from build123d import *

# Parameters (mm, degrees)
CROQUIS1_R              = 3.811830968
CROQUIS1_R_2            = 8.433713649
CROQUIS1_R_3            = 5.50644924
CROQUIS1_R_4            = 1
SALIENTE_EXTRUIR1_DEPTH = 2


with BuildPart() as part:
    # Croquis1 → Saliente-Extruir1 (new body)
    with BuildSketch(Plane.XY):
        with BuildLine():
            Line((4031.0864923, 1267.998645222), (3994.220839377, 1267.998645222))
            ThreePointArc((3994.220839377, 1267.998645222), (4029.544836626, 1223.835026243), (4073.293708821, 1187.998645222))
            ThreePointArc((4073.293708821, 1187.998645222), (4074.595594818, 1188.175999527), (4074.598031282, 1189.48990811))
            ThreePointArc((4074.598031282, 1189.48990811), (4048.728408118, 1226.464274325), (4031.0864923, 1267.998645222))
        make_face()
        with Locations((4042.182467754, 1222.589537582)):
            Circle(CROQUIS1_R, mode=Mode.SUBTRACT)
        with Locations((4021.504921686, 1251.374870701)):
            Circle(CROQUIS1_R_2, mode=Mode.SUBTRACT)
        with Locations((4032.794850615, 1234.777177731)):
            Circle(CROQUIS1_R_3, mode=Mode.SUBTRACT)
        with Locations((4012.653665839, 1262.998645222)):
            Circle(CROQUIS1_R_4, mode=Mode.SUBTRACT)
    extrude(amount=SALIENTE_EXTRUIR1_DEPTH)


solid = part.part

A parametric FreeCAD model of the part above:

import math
import FreeCAD as App
import Part
import Sketcher
from FreeCAD import Vector

doc = App.newDocument("Part")
body = doc.addObject("PartDesign::Body", "Body")

sketch1 = doc.addObject("Sketcher::SketchObject", "Sketch")
body.addObject(sketch1)
sketch1.AttachmentSupport = (doc.XY_Plane, [""])
sketch1.MapMode = "FlatFace"
sketch1.addGeometry(Part.LineSegment(Vector(4031.086492, 1267.998645, 0), Vector(3994.220839, 1267.998645, 0)), False)
sketch1.addGeometry(Part.ArcOfCircle(Part.Circle(Vector(4221.564854, 1413.629698, 0), Vector(0, 0, 1), 269.988341), math.radians(-147.357362), math.radians(-123.310508)), False)
sketch1.addGeometry(Part.ArcOfCircle(Part.Circle(Vector(4073.842885, 1188.834352, 0), Vector(0, 0, 1), 1), math.radians(-123.310508), math.radians(40.96184)), False)
sketch1.addGeometry(Part.ArcOfCircle(Part.Circle(Vector(4238.067817, 1331.40099, 0), Vector(0, 0, 1), 216.474308), math.radians(-162.96917), math.radians(-139.03816)), False)
sketch1.addGeometry(Part.Circle(Vector(4042.182468, 1222.589538, 0), Vector(0, 0, 1), 3.811831), False)
sketch1.addGeometry(Part.Circle(Vector(4032.794851, 1234.777178, 0), Vector(0, 0, 1), 5.506449), False)
sketch1.addGeometry(Part.Circle(Vector(4021.504922, 1251.374871, 0), Vector(0, 0, 1), 8.433714), False)
sketch1.addGeometry(Part.Circle(Vector(4012.653666, 1262.998645, 0), Vector(0, 0, 1), 1), False)
sketch1.addConstraint(Sketcher.Constraint("Coincident", 0, 2, 1, 1))
sketch1.addConstraint(Sketcher.Constraint("Tangent", 1, 2, 2, 1))
sketch1.addConstraint(Sketcher.Constraint("Tangent", 2, 2, 3, 2))
sketch1.addConstraint(Sketcher.Constraint("Coincident", 3, 1, 0, 1))
sketch1.addConstraint(Sketcher.Constraint("Horizontal", 0))
sketch1.addConstraint(Sketcher.Constraint("Equal", 2, 7))
sketch1.addConstraint(Sketcher.Constraint("Diameter", 7, 2.0))
sketch1.addConstraint(Sketcher.Constraint("DistanceY", 7, 3, 0, 2, 5.0))
sketch1.addConstraint(Sketcher.Constraint("DistanceY", 1, 2, 7, 3, 75.0))
sketch1.addConstraint(Sketcher.Constraint("Diameter", 5, 11.012898))
sketch1.addConstraint(Sketcher.Constraint("Diameter", 4, 7.623662))
sketch1.addConstraint(Sketcher.Constraint("Radius", 1, 269.988341))
sketch1.addConstraint(Sketcher.Constraint("Radius", 3, 216.474308))
sketch1.addConstraint(Sketcher.Constraint("Diameter", 6, 16.867427))
sketch1.addConstraint(Sketcher.Constraint("DistanceX", 7, 3, 4, 3, 29.528802))
sketch1.addConstraint(Sketcher.Constraint("DistanceX", 0, 2, 0, 1, 36.865653))
sketch1.addConstraint(Sketcher.Constraint("DistanceY", -1, 1, 2, 3, 1188.834352))
sketch1.addConstraint(Sketcher.Constraint("DistanceY", -1, 1, 3, 3, 1331.40099))
sketch1.addConstraint(Sketcher.Constraint("DistanceX", -1, 1, 5, 3, 4032.794851))
sketch1.addConstraint(Sketcher.Constraint("DistanceX", -1, 1, 6, 3, 4021.504922))
sketch1.addConstraint(Sketcher.Constraint("DistanceY", -1, 1, 6, 3, 1251.374871))
sketch1.addConstraint(Sketcher.Constraint("DistanceX", -1, 1, 0, 2, 3994.220839))
sketch1.addConstraint(Sketcher.Constraint("DistanceX", 4, 3, 3, 3, 195.885349))
sketch1.addConstraint(Sketcher.Constraint("DistanceY", 4, 3, 1, 3, 191.04016))
sketch1.addConstraint(Sketcher.Constraint("DistanceY", 4, 3, 5, 3, 12.18764))
pad1 = doc.addObject("PartDesign::Pad", "Pad")
body.addObject(pad1)
pad1.Profile = sketch1
pad1.Length = 2

doc.recompute()
